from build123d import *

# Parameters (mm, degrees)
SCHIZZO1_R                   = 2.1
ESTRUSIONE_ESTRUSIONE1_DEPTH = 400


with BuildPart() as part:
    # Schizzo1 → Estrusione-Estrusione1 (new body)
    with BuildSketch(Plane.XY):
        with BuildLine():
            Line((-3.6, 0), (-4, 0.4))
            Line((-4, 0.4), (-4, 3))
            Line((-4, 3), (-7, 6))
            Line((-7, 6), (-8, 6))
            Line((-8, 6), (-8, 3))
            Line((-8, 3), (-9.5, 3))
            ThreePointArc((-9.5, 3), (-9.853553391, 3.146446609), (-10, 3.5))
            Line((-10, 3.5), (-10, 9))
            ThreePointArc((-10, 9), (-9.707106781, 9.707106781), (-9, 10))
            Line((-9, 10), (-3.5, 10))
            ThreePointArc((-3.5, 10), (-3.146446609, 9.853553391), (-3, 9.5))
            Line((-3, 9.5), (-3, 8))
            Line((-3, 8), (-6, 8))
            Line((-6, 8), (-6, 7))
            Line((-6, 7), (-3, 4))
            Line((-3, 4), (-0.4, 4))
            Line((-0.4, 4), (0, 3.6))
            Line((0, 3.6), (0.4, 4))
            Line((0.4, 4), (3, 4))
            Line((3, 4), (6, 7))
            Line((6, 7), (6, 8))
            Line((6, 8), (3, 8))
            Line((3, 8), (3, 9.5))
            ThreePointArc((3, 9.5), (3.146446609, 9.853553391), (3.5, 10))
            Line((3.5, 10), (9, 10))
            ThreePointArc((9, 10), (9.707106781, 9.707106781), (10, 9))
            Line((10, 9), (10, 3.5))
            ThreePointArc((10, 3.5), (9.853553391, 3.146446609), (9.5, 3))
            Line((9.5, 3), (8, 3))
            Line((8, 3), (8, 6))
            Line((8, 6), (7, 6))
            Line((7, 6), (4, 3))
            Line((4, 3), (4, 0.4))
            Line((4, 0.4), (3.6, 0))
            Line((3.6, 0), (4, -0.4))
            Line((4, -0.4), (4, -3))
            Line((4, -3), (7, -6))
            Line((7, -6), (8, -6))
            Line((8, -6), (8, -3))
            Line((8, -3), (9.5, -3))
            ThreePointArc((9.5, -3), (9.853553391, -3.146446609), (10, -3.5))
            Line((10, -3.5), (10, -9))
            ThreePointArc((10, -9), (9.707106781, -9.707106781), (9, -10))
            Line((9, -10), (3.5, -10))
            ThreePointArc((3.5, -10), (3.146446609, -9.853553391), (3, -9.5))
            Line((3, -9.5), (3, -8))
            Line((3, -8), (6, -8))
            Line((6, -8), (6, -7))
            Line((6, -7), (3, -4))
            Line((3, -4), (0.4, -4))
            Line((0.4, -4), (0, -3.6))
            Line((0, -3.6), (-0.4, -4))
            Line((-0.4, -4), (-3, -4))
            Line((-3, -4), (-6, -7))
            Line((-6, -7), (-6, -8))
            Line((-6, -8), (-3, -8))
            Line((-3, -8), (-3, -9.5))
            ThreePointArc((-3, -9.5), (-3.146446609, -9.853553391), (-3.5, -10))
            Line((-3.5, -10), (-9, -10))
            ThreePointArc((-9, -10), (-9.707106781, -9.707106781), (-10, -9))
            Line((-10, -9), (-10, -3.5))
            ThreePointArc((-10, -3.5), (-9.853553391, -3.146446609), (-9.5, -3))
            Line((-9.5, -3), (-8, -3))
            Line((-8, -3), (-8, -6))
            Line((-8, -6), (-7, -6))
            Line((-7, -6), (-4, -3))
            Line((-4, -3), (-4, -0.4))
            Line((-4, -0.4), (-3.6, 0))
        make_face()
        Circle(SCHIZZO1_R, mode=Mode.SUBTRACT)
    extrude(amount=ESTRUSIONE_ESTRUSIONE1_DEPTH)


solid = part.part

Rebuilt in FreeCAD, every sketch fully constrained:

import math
import FreeCAD as App
import Part
import Sketcher

doc = App.newDocument("Part")
body = doc.addObject("PartDesign::Body", "Body")

# Sketch on XY plane
sketch1 = body.newObject("Sketcher::SketchObject", "Sketch")
sketch1.AttachmentSupport = (doc.getObject("XY_Plane"), [""])
sketch1.MapMode = "FlatFace"
sketch1.addGeometry(Part.LineSegment(App.Vector(-4, 0.4, 0), App.Vector(-3.6, 0, 0)), False)
sketch1.addGeometry(Part.LineSegment(App.Vector(-3.6, 0, 0), App.Vector(-4, -0.4, 0)), False)
sketch1.addGeometry(Part.LineSegment(App.Vector(-4, -0.4, 0), App.Vector(-4, -3, 0)), False)
sketch1.addGeometry(Part.LineSegment(App.Vector(-4, -3, 0), App.Vector(-7, -6, 0)), False)
sketch1.addGeometry(Part.LineSegment(App.Vector(-7, -6, 0), App.Vector(-8, -6, 0)), False)
sketch1.addGeometry(Part.LineSegment(App.Vector(-8, -6, 0), App.Vector(-8, -3, 0)), False)
sketch1.addGeometry(Part.LineSegment(App.Vector(-8, -3, 0), App.Vector(-9.5, -3, 0)), False)
sketch1.addGeometry(Part.ArcOfCircle(Part.Circle(App.Vector(-9.5, -3.5, 0), App.Vector(0, 0, 1), 0.5), math.radians(90), math.radians(180)), False)
sketch1.addGeometry(Part.LineSegment(App.Vector(-10, -3.5, 0), App.Vector(-10, -9, 0)), False)
sketch1.addGeometry(Part.ArcOfCircle(Part.Circle(App.Vector(-9, -9, 0), App.Vector(0, 0, 1), 1), math.radians(-180), math.radians(-90)), False)
sketch1.addGeometry(Part.LineSegment(App.Vector(-9, -10, 0), App.Vector(-3.5, -10, 0)), False)
sketch1.addGeometry(Part.ArcOfCircle(Part.Circle(App.Vector(-3.5, -9.5, 0), App.Vector(0, 0, 1), 0.5), math.radians(-90), math.radians(0)), False)
sketch1.addGeometry(Part.LineSegment(App.Vector(-3, -9.5, 0), App.Vector(-3, -8, 0)), False)
sketch1.addGeometry(Part.LineSegment(App.Vector(-3, -8, 0), App.Vector(-6, -8, 0)), False)
sketch1.addGeometry(Part.LineSegment(App.Vector(-6, -8, 0), App.Vector(-6, -7, 0)), False)
sketch1.addGeometry(Part.LineSegment(App.Vector(-6, -7, 0), App.Vector(-3, -4, 0)), False)
sketch1.addGeometry(Part.LineSegment(App.Vector(-3, -4, 0), App.Vector(-0.4, -4, 0)), False)
sketch1.addGeometry(Part.LineSegment(App.Vector(-0.4, -4, 0), App.Vector(0, -3.6, 0)), False)
sketch1.addGeometry(Part.LineSegment(App.Vector(0, -3.6, 0), App.Vector(0.4, -4, 0)), False)
sketch1.addGeometry(Part.LineSegment(App.Vector(0.4, -4, 0), App.Vector(3, -4, 0)), False)
sketch1.addGeometry(Part.LineSegment(App.Vector(3, -4, 0), App.Vector(6, -7, 0)), False)
sketch1.addGeometry(Part.LineSegment(App.Vector(6, -7, 0), App.Vector(6, -8, 0)), False)
sketch1.addGeometry(Part.LineSegment(App.Vector(6, -8, 0), App.Vector(3, -8, 0)), False)
sketch1.addGeometry(Part.LineSegment(App.Vector(3, -8, 0), App.Vector(3, -9.5, 0)), False)
sketch1.addGeometry(Part.ArcOfCircle(Part.Circle(App.Vector(3.5, -9.5, 0), App.Vector(0, 0, 1), 0.5), math.radians(180), math.radians(270)), False)
sketch1.addGeometry(Part.LineSegment(App.Vector(3.5, -10, 0), App.Vector(9, -10, 0)), False)
sketch1.addGeometry(Part.ArcOfCircle(Part.Circle(App.Vector(9, -9, 0), App.Vector(0, 0, 1), 1), math.radians(-90), math.radians(0)), False)
sketch1.addGeometry(Part.LineSegment(App.Vector(10, -9, 0), App.Vector(10, -3.5, 0)), False)
sketch1.addGeometry(Part.ArcOfCircle(Part.Circle(App.Vector(9.5, -3.5, 0), App.Vector(0, 0, 1), 0.5), math.radians(0), math.radians(90)), False)
sketch1.addGeometry(Part.LineSegment(App.Vector(9.5, -3, 0), App.Vector(8, -3, 0)), False)
sketch1.addGeometry(Part.LineSegment(App.Vector(8, -3, 0), App.Vector(8, -6, 0)), False)
sketch1.addGeometry(Part.LineSegment(App.Vector(8, -6, 0), App.Vector(7, -6, 0)), False)
sketch1.addGeometry(Part.LineSegment(App.Vector(7, -6, 0), App.Vector(4, -3, 0)), False)
sketch1.addGeometry(Part.LineSegment(App.Vector(4, -3, 0), App.Vector(4, -0.4, 0)), False)
sketch1.addGeometry(Part.LineSegment(App.Vector(4, -0.4, 0), App.Vector(3.6, 0, 0)), False)
sketch1.addGeometry(Part.LineSegment(App.Vector(3.6, 0, 0), App.Vector(4, 0.4, 0)), False)
sketch1.addGeometry(Part.LineSegment(App.Vector(4, 0.4, 0), App.Vector(4, 3, 0)), False)
sketch1.addGeometry(Part.LineSegment(App.Vector(4, 3, 0), App.Vector(7, 6, 0)), False)
sketch1.addGeometry(Part.LineSegment(App.Vector(7, 6, 0), App.Vector(8, 6, 0)), False)
sketch1.addGeometry(Part.LineSegment(App.Vector(8, 6, 0), App.Vector(8, 3, 0)), False)
sketch1.addGeometry(Part.LineSegment(App.Vector(8, 3, 0), App.Vector(9.5, 3, 0)), False)
sketch1.addGeometry(Part.ArcOfCircle(Part.Circle(App.Vector(9.5, 3.5, 0), App.Vector(0, 0, 1), 0.5), math.radians(-90), math.radians(0)), False)
sketch1.addGeometry(Part.LineSegment(App.Vector(10, 3.5, 0), App.Vector(10, 9, 0)), False)
sketch1.addGeometry(Part.ArcOfCircle(Part.Circle(App.Vector(9, 9, 0), App.Vector(0, 0, 1), 1), math.radians(0), math.radians(90)), False)
sketch1.addGeometry(Part.LineSegment(App.Vector(9, 10, 0), App.Vector(3.5, 10, 0)), False)
sketch1.addGeometry(Part.ArcOfCircle(Part.Circle(App.Vector(3.5, 9.5, 0), App.Vector(0, 0, 1), 0.5), math.radians(90), math.radians(180)), False)
sketch1.addGeometry(Part.LineSegment(App.Vector(3, 9.5, 0), App.Vector(3, 8, 0)), False)
sketch1.addGeometry(Part.LineSegment(App.Vector(3, 8, 0), App.Vector(6, 8, 0)), False)
sketch1.addGeometry(Part.LineSegment(App.Vector(6, 8, 0), App.Vector(6, 7, 0)), False)
sketch1.addGeometry(Part.LineSegment(App.Vector(6, 7, 0), App.Vector(3, 4, 0)), False)
sketch1.addGeometry(Part.LineSegment(App.Vector(3, 4, 0), App.Vector(0.4, 4, 0)), False)
sketch1.addGeometry(Part.LineSegment(App.Vector(0.4, 4, 0), App.Vector(0, 3.6, 0)), False)
sketch1.addGeometry(Part.LineSegment(App.Vector(0, 3.6, 0), App.Vector(-0.4, 4, 0)), False)
sketch1.addGeometry(Part.LineSegment(App.Vector(-0.4, 4, 0), App.Vector(-3, 4, 0)), False)
sketch1.addGeometry(Part.LineSegment(App.Vector(-3, 4, 0), App.Vector(-6, 7, 0)), False)
sketch1.addGeometry(Part.LineSegment(App.Vector(-6, 7, 0), App.Vector(-6, 8, 0)), False)
sketch1.addGeometry(Part.LineSegment(App.Vector(-6, 8, 0), App.Vector(-3, 8, 0)), False)
sketch1.addGeometry(Part.LineSegment(App.Vector(-3, 8, 0), App.Vector(-3, 9.5, 0)), False)
sketch1.addGeometry(Part.ArcOfCircle(Part.Circle(App.Vector(-3.5, 9.5, 0), App.Vector(0, 0, 1), 0.5), math.radians(0), math.radians(90)), False)
sketch1.addGeometry(Part.LineSegment(App.Vector(-3.5, 10, 0), App.Vector(-9, 10, 0)), False)
sketch1.addGeometry(Part.ArcOfCircle(Part.Circle(App.Vector(-9, 9, 0), App.Vector(0, 0, 1), 1), math.radians(90), math.radians(180)), False)
sketch1.addGeometry(Part.LineSegment(App.Vector(-10, 9, 0), App.Vector(-10, 3.5, 0)), False)
sketch1.addGeometry(Part.ArcOfCircle(Part.Circle(App.Vector(-9.5, 3.5, 0), App.Vector(0, 0, 1), 0.5), math.radians(180), math.radians(270)), False)
sketch1.addGeometry(Part.LineSegment(App.Vector(-9.5, 3, 0), App.Vector(-8, 3, 0)), False)
sketch1.addGeometry(Part.LineSegment(App.Vector(-8, 3, 0), App.Vector(-8, 6, 0)), False)
sketch1.addGeometry(Part.LineSegment(App.Vector(-8, 6, 0), App.Vector(-7, 6, 0)), False)
sketch1.addGeometry(Part.LineSegment(App.Vector(-7, 6, 0), App.Vector(-4, 3, 0)), False)
sketch1.addGeometry(Part.LineSegment(App.Vector(-4, 3, 0), App.Vector(-4, 0.4, 0)), False)
sketch1.addGeometry(Part.Circle(App.Vector(0, 0, 0), App.Vector(0, 0, 1), 2.1), False)
sketch1.addConstraint(Sketcher.Constraint("Coincident", 0, 2, 1, 1))
sketch1.addConstraint(Sketcher.Constraint("Coincident", 1, 2, 2, 1))
sketch1.addConstraint(Sketcher.Constraint("Coincident", 2, 2, 3, 1))
sketch1.addConstraint(Sketcher.Constraint("Coincident", 3, 2, 4, 1))
sketch1.addConstraint(Sketcher.Constraint("Coincident", 4, 2, 5, 1))
sketch1.addConstraint(Sketcher.Constraint("Coincident", 5, 2, 6, 1))
sketch1.addConstraint(Sketcher.Constraint("Tangent", 6, 2, 7, 1))
sketch1.addConstraint(Sketcher.Constraint("Tangent", 7, 2, 8, 1))
sketch1.addConstraint(Sketcher.Constraint("Tangent", 8, 2, 9, 1))
sketch1.addConstraint(Sketcher.Constraint("Tangent", 9, 2, 10, 1))
sketch1.addConstraint(Sketcher.Constraint("Tangent", 10, 2, 11, 1))
sketch1.addConstraint(Sketcher.Constraint("Tangent", 11, 2, 12, 1))
sketch1.addConstraint(Sketcher.Constraint("Coincident", 12, 2, 13, 1))
sketch1.addConstraint(Sketcher.Constraint("Coincident", 13, 2, 14, 1))
sketch1.addConstraint(Sketcher.Constraint("Coincident", 14, 2, 15, 1))
sketch1.addConstraint(Sketcher.Constraint("Coincident", 15, 2, 16, 1))
sketch1.addConstraint(Sketcher.Constraint("Coincident", 16, 2, 17, 1))
sketch1.addConstraint(Sketcher.Constraint("Coincident", 17, 2, 18, 1))
sketch1.addConstraint(Sketcher.Constraint("Coincident", 18, 2, 19, 1))
sketch1.addConstraint(Sketcher.Constraint("Coincident", 19, 2, 20, 1))
sketch1.addConstraint(Sketcher.Constraint("Coincident", 20, 2, 21, 1))
sketch1.addConstraint(Sketcher.Constraint("Coincident", 21, 2, 22, 1))
sketch1.addConstraint(Sketcher.Constraint("Coincident", 22, 2, 23, 1))
sketch1.addConstraint(Sketcher.Constraint("Tangent", 23, 2, 24, 1))
sketch1.addConstraint(Sketcher.Constraint("Tangent", 24, 2, 25, 1))
sketch1.addConstraint(Sketcher.Constraint("Tangent", 25, 2, 26, 1))
sketch1.addConstraint(Sketcher.Constraint("Tangent", 26, 2, 27, 1))
sketch1.addConstraint(Sketcher.Constraint("Tangent", 27, 2, 28, 1))
sketch1.addConstraint(Sketcher.Constraint("Tangent", 28, 2, 29, 1))
sketch1.addConstraint(Sketcher.Constraint("Coincident", 29, 2, 30, 1))
sketch1.addConstraint(Sketcher.Constraint("Coincident", 30, 2, 31, 1))
sketch1.addConstraint(Sketcher.Constraint("Coincident", 31, 2, 32, 1))
sketch1.addConstraint(Sketcher.Constraint("Coincident", 32, 2, 33, 1))
sketch1.addConstraint(Sketcher.Constraint("Coincident", 33, 2, 34, 1))
sketch1.addConstraint(Sketcher.Constraint("Coincident", 34, 2, 35, 1))
sketch1.addConstraint(Sketcher.Constraint("Coincident", 35, 2, 36, 1))
sketch1.addConstraint(Sketcher.Constraint("Coincident", 36, 2, 37, 1))
sketch1.addConstraint(Sketcher.Constraint("Coincident", 37, 2, 38, 1))
sketch1.addConstraint(Sketcher.Constraint("Coincident", 38, 2, 39, 1))
sketch1.addConstraint(Sketcher.Constraint("Coincident", 39, 2, 40, 1))
sketch1.addConstraint(Sketcher.Constraint("Tangent", 40, 2, 41, 1))
sketch1.addConstraint(Sketcher.Constraint("Tangent", 41, 2, 42, 1))
sketch1.addConstraint(Sketcher.Constraint("Tangent", 42, 2, 43, 1))
sketch1.addConstraint(Sketcher.Constraint("Tangent", 43, 2, 44, 1))
sketch1.addConstraint(Sketcher.Constraint("Tangent", 44, 2, 45, 1))
sketch1.addConstraint(Sketcher.Constraint("Tangent", 45, 2, 46, 1))
sketch1.addConstraint(Sketcher.Constraint("Coincident", 46, 2, 47, 1))
sketch1.addConstraint(Sketcher.Constraint("Coincident", 47, 2, 48, 1))
sketch1.addConstraint(Sketcher.Constraint("Coincident", 48, 2, 49, 1))
sketch1.addConstraint(Sketcher.Constraint("Coincident", 49, 2, 50, 1))
sketch1.addConstraint(Sketcher.Constraint("Coincident", 50, 2, 51, 1))
sketch1.addConstraint(Sketcher.Constraint("Coincident", 51, 2, 52, 1))
sketch1.addConstraint(Sketcher.Constraint("Coincident", 52, 2, 53, 1))
sketch1.addConstraint(Sketcher.Constraint("Coincident", 53, 2, 54, 1))
sketch1.addConstraint(Sketcher.Constraint("Coincident", 54, 2, 55, 1))
sketch1.addConstraint(Sketcher.Constraint("Coincident", 55, 2, 56, 1))
sketch1.addConstraint(Sketcher.Constraint("Coincident", 56, 2, 57, 1))
sketch1.addConstraint(Sketcher.Constraint("Tangent", 57, 2, 58, 1))
sketch1.addConstraint(Sketcher.Constraint("Tangent", 58, 2, 59, 1))
sketch1.addConstraint(Sketcher.Constraint("Tangent", 59, 2, 60, 1))
sketch1.addConstraint(Sketcher.Constraint("Tangent", 60, 2, 61, 1))
sketch1.addConstraint(Sketcher.Constraint("Tangent", 61, 2, 62, 1))
sketch1.addConstraint(Sketcher.Constraint("Tangent", 62, 2, 63, 1))
sketch1.addConstraint(Sketcher.Constraint("Coincident", 63, 2, 64, 1))
sketch1.addConstraint(Sketcher.Constraint("Coincident", 64, 2, 65, 1))
sketch1.addConstraint(Sketcher.Constraint("Coincident", 65, 2, 66, 1))
sketch1.addConstraint(Sketcher.Constraint("Coincident", 66, 2, 67, 1))
sketch1.addConstraint(Sketcher.Constraint("Coincident", 67, 2, 0, 1))
sketch1.addConstraint(Sketcher.Constraint("Vertical", 2))
sketch1.addConstraint(Sketcher.Constraint("Horizontal", 4))
sketch1.addConstraint(Sketcher.Constraint("Vertical", 5))
sketch1.addConstraint(Sketcher.Constraint("Horizontal", 6))
sketch1.addConstraint(Sketcher.Constraint("Vertical", 8))
sketch1.addConstraint(Sketcher.Constraint("Horizontal", 10))
sketch1.addConstraint(Sketcher.Constraint("Vertical", 12))
sketch1.addConstraint(Sketcher.Constraint("Horizontal", 13))
sketch1.addConstraint(Sketcher.Constraint("Vertical", 14))
sketch1.addConstraint(Sketcher.Constraint("Horizontal", 16))
sketch1.addConstraint(Sketcher.Constraint("Horizontal", 19))
sketch1.addConstraint(Sketcher.Constraint("Vertical", 21))
sketch1.addConstraint(Sketcher.Constraint("Horizontal", 22))
sketch1.addConstraint(Sketcher.Constraint("Vertical", 23))
sketch1.addConstraint(Sketcher.Constraint("Horizontal", 25))
sketch1.addConstraint(Sketcher.Constraint("Vertical", 27))
sketch1.addConstraint(Sketcher.Constraint("Horizontal", 29))
sketch1.addConstraint(Sketcher.Constraint("Vertical", 30))
sketch1.addConstraint(Sketcher.Constraint("Horizontal", 31))
sketch1.addConstraint(Sketcher.Constraint("Vertical", 33))
sketch1.addConstraint(Sketcher.Constraint("Vertical", 36))
sketch1.addConstraint(Sketcher.Constraint("Horizontal", 38))
sketch1.addConstraint(Sketcher.Constraint("Vertical", 39))
sketch1.addConstraint(Sketcher.Constraint("Horizontal", 40))
sketch1.addConstraint(Sketcher.Constraint("Vertical", 42))
sketch1.addConstraint(Sketcher.Constraint("Horizontal", 44))
sketch1.addConstraint(Sketcher.Constraint("Vertical", 46))
sketch1.addConstraint(Sketcher.Constraint("Horizontal", 47))
sketch1.addConstraint(Sketcher.Constraint("Vertical", 48))
sketch1.addConstraint(Sketcher.Constraint("Horizontal", 50))
sketch1.addConstraint(Sketcher.Constraint("Horizontal", 53))
sketch1.addConstraint(Sketcher.Constraint("Vertical", 55))
sketch1.addConstraint(Sketcher.Constraint("Horizontal", 56))
sketch1.addConstraint(Sketcher.Constraint("Vertical", 57))
sketch1.addConstraint(Sketcher.Constraint("Horizontal", 59))
sketch1.addConstraint(Sketcher.Constraint("Vertical", 61))
sketch1.addConstraint(Sketcher.Constraint("Horizontal", 63))
sketch1.addConstraint(Sketcher.Constraint("Vertical", 64))
sketch1.addConstraint(Sketcher.Constraint("Horizontal", 65))
sketch1.addConstraint(Sketcher.Constraint("Vertical", 67))
sketch1.addConstraint(Sketcher.Constraint("Coincident", 68, 3, -1, 1))
sketch1.addConstraint(Sketcher.Constraint("Equal", 7, 11))
sketch1.addConstraint(Sketcher.Constraint("Equal", 11, 24))
sketch1.addConstraint(Sketcher.Constraint("Equal", 9, 26))
sketch1.addConstraint(Sketcher.Constraint("Equal", 24, 28))
sketch1.addConstraint(Sketcher.Constraint("Equal", 28, 41))
sketch1.addConstraint(Sketcher.Constraint("Equal", 26, 43))
sketch1.addConstraint(Sketcher.Constraint("Equal", 41, 45))
sketch1.addConstraint(Sketcher.Constraint("Equal", 45, 58))
sketch1.addConstraint(Sketcher.Constraint("Equal", 43, 60))
sketch1.addConstraint(Sketcher.Constraint("Equal", 58, 62))
sketch1.addConstraint(Sketcher.Constraint("Symmetric", 7, 3, 41, 3, -1, 1))
sketch1.addConstraint(Sketcher.Constraint("Symmetric", 11, 3, 45, 3, -1, 1))
sketch1.addConstraint(Sketcher.Constraint("Symmetric", 24, 3, 58, 3, -1, 1))
sketch1.addConstraint(Sketcher.Constraint("Symmetric", 28, 3, 62, 3, -1, 1))
sketch1.addConstraint(Sketcher.Constraint("Symmetric", 0, 2, 34, 2, -1, 1))
sketch1.addConstraint(Sketcher.Constraint("Symmetric", 1, 2, 35, 2, -1, 1))
sketch1.addConstraint(Sketcher.Constraint("Symmetric", 3, 2, 37, 2, -1, 1))
sketch1.addConstraint(Sketcher.Constraint("Symmetric", 13, 2, 47, 2, -1, 1))
sketch1.addConstraint(Sketcher.Constraint("Symmetric", 15, 2, 49, 2, -1, 1))
sketch1.addConstraint(Sketcher.Constraint("Symmetric", 17, 2, 51, 2, -1, 1))
sketch1.addConstraint(Sketcher.Constraint("Symmetric", 18, 2, 52, 2, -1, 1))
sketch1.addConstraint(Sketcher.Constraint("Symmetric", 20, 2, 54, 2, -1, 1))
sketch1.addConstraint(Sketcher.Constraint("Symmetric", 30, 2, 64, 2, -1, 1))
sketch1.addConstraint(Sketcher.Constraint("Symmetric", 32, 2, 66, 2, -1, 1))
sketch1.addConstraint(Sketcher.Constraint("Symmetric", 11, 3, 24, 3, -2))
sketch1.addConstraint(Sketcher.Constraint("Symmetric", 7, 3, 28, 3, -2))
sketch1.addConstraint(Sketcher.Constraint("Symmetric", 16, 2, 18, 2, -2))
sketch1.addConstraint(Sketcher.Constraint("Symmetric", 14, 2, 20, 2, -2))
sketch1.addConstraint(Sketcher.Constraint("Symmetric", 4, 2, 30, 2, -2))
sketch1.addConstraint(Sketcher.Constraint("Symmetric", 2, 2, 32, 2, -2))
sketch1.addConstraint(Sketcher.Constraint("PointOnObject", 0, 2, -1))
sketch1.addConstraint(Sketcher.Constraint("PointOnObject", 17, 2, -2))
sketch1.addConstraint(Sketcher.Constraint("Perpendicular", 0, 1))
sketch1.addConstraint(Sketcher.Constraint("Parallel", 1, 3))
sketch1.addConstraint(Sketcher.Constraint("Parallel", 3, 15))
sketch1.addConstraint(Sketcher.Constraint("Parallel", 15, 17))
sketch1.addConstraint(Sketcher.Constraint("Perpendicular", 17, 18))
sketch1.addConstraint(Sketcher.Constraint("Parallel", 18, 20))
sketch1.addConstraint(Sketcher.Constraint("Parallel", 20, 32))
sketch1.addConstraint(Sketcher.Constraint("Parallel", 32, 34))
sketch1.addConstraint(Sketcher.Constraint("Parallel", 35, 37))
sketch1.addConstraint(Sketcher.Constraint("Parallel", 37, 49))
sketch1.addConstraint(Sketcher.Constraint("Parallel", 49, 51))
sketch1.addConstraint(Sketcher.Constraint("Parallel", 52, 54))
sketch1.addConstraint(Sketcher.Constraint("Parallel", 54, 66))
sketch1.addConstraint(Sketcher.Constraint("Horizontal", 2, 2, 5, 2))
sketch1.addConstraint(Sketcher.Constraint("Horizontal", 13, 2, 21, 2))
sketch1.addConstraint(Sketcher.Constraint("Horizontal", 47, 2, 55, 2))
sketch1.addConstraint(Sketcher.Constraint("Vertical", 12, 2, 15, 2))
sketch1.addConstraint(Sketcher.Constraint("Vertical", 30, 2, 38, 2))
sketch1.addConstraint(Sketcher.Constraint("Equal", 53, 2))
sketch1.addConstraint(Sketcher.Constraint("Equal", 56, 5))
sketch1.addConstraint(Sketcher.Constraint("Equal", 59, 8))
sketch1.addConstraint(Sketcher.Constraint("Equal", 63, 12))
sketch1.addConstraint(Sketcher.Constraint("Equal", 65, 14))
sketch1.addConstraint(Sketcher.Constraint("Equal", 1, 17))
sketch1.addConstraint(Sketcher.Constraint("Radius", 9, 1.0))
sketch1.addConstraint(Sketcher.Constraint("Diameter", 68, 4.2))
sketch1.addConstraint(Sketcher.Constraint("Radius", 7, 0.5))
sketch1.addConstraint(Sketcher.Constraint("DistanceX", 4, 2, 4, 1, 1.0))
sketch1.addConstraint(Sketcher.Constraint("DistanceX", 13, 2, 13, 1, 3.0))
sketch1.addConstraint(Sketcher.Constraint("DistanceX", 6, 2, 6, 1, 1.5))
sketch1.addConstraint(Sketcher.Constraint("DistanceX", 10, 1, 10, 2, 5.5))
sketch1.addConstraint(Sketcher.Constraint("DistanceX", 16, 1, 16, 2, 2.6))
sketch1.addConstraint(Sketcher.Constraint("DistanceX", 9, 3, -1, 1, 9.0))
pad1 = body.newObject("PartDesign::Pad", "Pad")
pad1.Profile = sketch1
pad1.Length = 400

doc.recompute()
